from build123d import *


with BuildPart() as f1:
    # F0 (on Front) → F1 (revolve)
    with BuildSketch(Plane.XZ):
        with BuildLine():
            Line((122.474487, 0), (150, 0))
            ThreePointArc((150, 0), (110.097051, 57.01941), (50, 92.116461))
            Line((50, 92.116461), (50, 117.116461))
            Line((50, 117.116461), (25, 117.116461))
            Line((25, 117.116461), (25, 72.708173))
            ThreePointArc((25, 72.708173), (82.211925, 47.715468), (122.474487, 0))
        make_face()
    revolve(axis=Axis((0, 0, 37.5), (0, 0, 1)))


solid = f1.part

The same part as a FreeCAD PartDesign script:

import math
import FreeCAD as App
import Part
import Sketcher
from FreeCAD import Vector

doc = App.newDocument("Part")
params = doc.addObject("Spreadsheet::Sheet", "Params")
for row, (alias, value) in enumerate([
    ("sketch1_radius", "162.5 mm"),
    ("sketch1_radius2", "137.5 mm"),
    ("sketch1_width", "25 mm"),
    ("revolution_angle", "360 deg"),
], start=1):
    params.set(f"A{row}", alias)
    params.set(f"B{row}", "=" + value)
    params.setAlias(f"B{row}", alias)

body = doc.addObject("PartDesign::Body", "Body")

# Sketch on XZ plane
sketch1 = body.newObject("Sketcher::SketchObject", "Sketch")
sketch1.AttachmentSupport = (doc.getObject("XZ_Plane"), [""])
sketch1.MapMode = "FlatFace"
sketch1.addGeometry(Part.LineSegment(Vector(122, 0, 0), Vector(150, 0, 0)), False)
sketch1.addGeometry(Part.ArcOfCircle(Part.Circle(Vector(0, -62, 0), Vector(0, 0, 1), 163), math.radians(23), math.radians(72)), False)
sketch1.addGeometry(Part.LineSegment(Vector(50, 92, 0), Vector(50, 117, 0)), False)
sketch1.addGeometry(Part.LineSegment(Vector(50, 117, 0), Vector(25, 117, 0)), False)
sketch1.addGeometry(Part.LineSegment(Vector(25, 117, 0), Vector(25, 73, 0)), False)
sketch1.addGeometry(Part.ArcOfCircle(Part.Circle(Vector(0, -63, 0), Vector(0, 0, 1), 138), math.radians(27), math.radians(80)), False)
sketch1.addConstraint(Sketcher.Constraint("Coincident", 0, 2, 1, 1))
sketch1.addConstraint(Sketcher.Constraint("Coincident", 1, 2, 2, 1))
sketch1.addConstraint(Sketcher.Constraint("Coincident", 2, 2, 3, 1))
sketch1.addConstraint(Sketcher.Constraint("Coincident", 3, 2, 4, 1))
sketch1.addConstraint(Sketcher.Constraint("Coincident", 4, 2, 5, 2))
sketch1.addConstraint(Sketcher.Constraint("Coincident", 5, 1, 0, 1))
sketch1.addConstraint(Sketcher.Constraint("Horizontal", 0))
sketch1.addConstraint(Sketcher.Constraint("Vertical", 2))
sketch1.addConstraint(Sketcher.Constraint("Horizontal", 3))
sketch1.addConstraint(Sketcher.Constraint("Vertical", 4))
sketch1.addConstraint(Sketcher.Constraint("Coincident", 5, 3, 1, 3))
sketch1.addConstraint(Sketcher.Constraint("PointOnObject", 1, 3, -2))
sketch1.addConstraint(Sketcher.Constraint("PointOnObject", 0, 2, -1))
sketch1.addConstraint(Sketcher.Constraint("Equal", 3, 2))
sketch1.addConstraint(Sketcher.Constraint("Radius", 1, 162.5))
sketch1.addConstraint(Sketcher.Constraint("Radius", 5, 137.5))
sketch1.addConstraint(Sketcher.Constraint("DistanceX", 3, 2, 3, 1, 25.0))
sketch1.addConstraint(Sketcher.Constraint("DistanceX", -1, 1, 0, 2, 150.0))
sketch1.addConstraint(Sketcher.Constraint("DistanceX", -1, 1, 1, 2, 50.0))
sketch1.setExpression("Constraints[14]", "Params.sketch1_radius")
sketch1.setExpression("Constraints[15]", "Params.sketch1_radius2")
sketch1.setExpression("Constraints[16]", "Params.sketch1_width")
revolution = body.newObject("PartDesign::Revolution", "Revolution")
revolution.Profile = sketch1
revolution.ReferenceAxis = (sketch1, ["V_Axis"])
revolution.setExpression("Angle", "Params.revolution_angle")

doc.recompute()
